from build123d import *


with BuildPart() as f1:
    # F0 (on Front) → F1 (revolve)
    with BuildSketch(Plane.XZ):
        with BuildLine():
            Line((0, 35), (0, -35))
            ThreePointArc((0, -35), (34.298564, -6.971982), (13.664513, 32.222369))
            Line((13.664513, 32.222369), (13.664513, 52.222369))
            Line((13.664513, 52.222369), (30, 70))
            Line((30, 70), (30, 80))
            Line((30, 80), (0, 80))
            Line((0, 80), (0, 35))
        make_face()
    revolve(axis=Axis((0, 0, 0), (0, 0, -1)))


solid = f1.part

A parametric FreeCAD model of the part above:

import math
import FreeCAD as App
import Part
import Sketcher

V = App.Vector

doc = App.newDocument("Part")
params = doc.addObject("Spreadsheet::Sheet", "Params")
for row, (alias, value) in enumerate([
    ("sketch1_radius", "35 mm"),
    ("sketch1_width", "30 mm"),
    ("sketch1_height", "20 mm"),
    ("sketch1_height2", "10 mm"),
    ("sketch1_height3", "115 mm"),
    ("revolution_angle", "360 deg"),
], start=1):
    params.set(f"A{row}", alias)
    params.set(f"B{row}", "=" + value)
    params.setAlias(f"B{row}", alias)

body = doc.addObject("PartDesign::Body", "Body")

# Sketch on XZ plane
sketch1 = body.newObject("Sketcher::SketchObject", "Sketch")
sketch1.AttachmentSupport = (doc.getObject("XZ_Plane"), [""])
sketch1.MapMode = "FlatFace"
sketch1.addGeometry(Part.ArcOfCircle(Part.Circle(V(0, 0, 0), V(0, 0, 1), 35), math.radians(-90), math.radians(67)), False)
sketch1.addGeometry(Part.LineSegment(V(14, 32, 0), V(14, 52, 0)), False)
sketch1.addGeometry(Part.LineSegment(V(14, 52, 0), V(30, 70, 0)), False)
sketch1.addGeometry(Part.LineSegment(V(30, 70, 0), V(30, 80, 0)), False)
sketch1.addGeometry(Part.LineSegment(V(30, 80, 0), V(0, 80, 0)), False)
sketch1.addGeometry(Part.LineSegment(V(0, 80, 0), V(0, -35, 0)), False)
sketch1.addConstraint(Sketcher.Constraint("Coincident", 0, 2, 1, 1))
sketch1.addConstraint(Sketcher.Constraint("Coincident", 1, 2, 2, 1))
sketch1.addConstraint(Sketcher.Constraint("Coincident", 2, 2, 3, 1))
sketch1.addConstraint(Sketcher.Constraint("Coincident", 3, 2, 4, 1))
sketch1.addConstraint(Sketcher.Constraint("Coincident", 4, 2, 5, 1))
sketch1.addConstraint(Sketcher.Constraint("Coincident", 5, 2, 0, 1))
sketch1.addConstraint(Sketcher.Constraint("Vertical", 1))
sketch1.addConstraint(Sketcher.Constraint("Vertical", 3))
sketch1.addConstraint(Sketcher.Constraint("Horizontal", 4))
sketch1.addConstraint(Sketcher.Constraint("Vertical", 5))
sketch1.addConstraint(Sketcher.Constraint("Coincident", 0, 3, -1, 1))
sketch1.addConstraint(Sketcher.Constraint("PointOnObject", 4, 2, -2))
sketch1.addConstraint(Sketcher.Constraint("Radius", 0, 35.0))
sketch1.addConstraint(Sketcher.Constraint("DistanceX", 4, 2, 4, 1, 30.0))
sketch1.addConstraint(Sketcher.Constraint("DistanceY", 1, 1, 1, 2, 20.0))
sketch1.addConstraint(Sketcher.Constraint("DistanceY", 3, 1, 3, 2, 10.0))
sketch1.addConstraint(Sketcher.Constraint("DistanceY", 5, 2, 5, 1, 115.0))
sketch1.addConstraint(Sketcher.Constraint("DistanceY", -1, 1, 0, 2, 32.222369))
sketch1.setExpression("Constraints[12]", "Params.sketch1_radius")
sketch1.setExpression("Constraints[13]", "Params.sketch1_width")
sketch1.setExpression("Constraints[14]", "Params.sketch1_height")
sketch1.setExpression("Constraints[15]", "Params.sketch1_height2")
sketch1.setExpression("Constraints[16]", "Params.sketch1_height3")
revolution = body.newObject("PartDesign::Revolution", "Revolution")
revolution.Profile = sketch1
revolution.ReferenceAxis = (sketch1, ["V_Axis"])
revolution.setExpression("Angle", "Params.revolution_angle")

doc.recompute()
